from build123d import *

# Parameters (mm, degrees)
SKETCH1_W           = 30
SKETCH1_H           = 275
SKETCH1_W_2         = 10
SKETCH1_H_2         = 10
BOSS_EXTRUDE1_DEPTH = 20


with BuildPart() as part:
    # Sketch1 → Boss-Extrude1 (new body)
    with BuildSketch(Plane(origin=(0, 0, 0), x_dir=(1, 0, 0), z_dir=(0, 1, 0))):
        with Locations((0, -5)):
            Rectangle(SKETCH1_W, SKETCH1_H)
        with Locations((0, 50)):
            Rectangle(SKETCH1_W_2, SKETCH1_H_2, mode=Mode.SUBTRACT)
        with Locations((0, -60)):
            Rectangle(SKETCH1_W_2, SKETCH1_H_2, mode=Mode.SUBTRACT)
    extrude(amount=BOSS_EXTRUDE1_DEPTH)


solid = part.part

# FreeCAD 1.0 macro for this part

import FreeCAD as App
import Part
import Sketcher
from FreeCAD import Vector


def add_polygon(sketch, points):
    """Adds a closed chain of lines whose ends are joined by coincident constraints."""
    first, n = sketch.GeometryCount, len(points)
    for a, b in zip(points, points[1:] + points[:1]):
        sketch.addGeometry(Part.LineSegment(App.Vector(*a, 0), App.Vector(*b, 0)), False)
    for i in range(n):
        sketch.addConstraint(Sketcher.Constraint("Coincident", first + i, 2, first + (i + 1) % n, 1))

doc = App.newDocument("Part")
params = doc.addObject("Spreadsheet::Sheet", "Params")
for row, (alias, value) in enumerate([
    ("sketch1_width", "30 mm"),
    ("sketch1_width2", "10 mm"),
    ("sketch1_height", "275 mm"),
    ("pad1_length", "20 mm"),
], start=1):
    params.set(f"A{row}", alias)
    params.set(f"B{row}", "=" + value)
    params.setAlias(f"B{row}", alias)

body = doc.addObject("PartDesign::Body", "Body")

# Sketch on XZ plane
sketch1 = body.newObject("Sketcher::SketchObject", "Sketch")
sketch1.AttachmentSupport = (doc.getObject("XZ_Plane"), [""])
sketch1.MapMode = "FlatFace"
add_polygon(sketch1, [(-15, -132), (-15, 142), (15, 142), (15, -132)])  # lines 0-3
add_polygon(sketch1, [(5, 65), (-5, 65), (-5, 55), (5, 55)])  # lines 4-7
add_polygon(sketch1, [(5, -45), (-5, -45), (-5, -55), (5, -55)])  # lines 8-11
sketch1.addConstraint([
    Sketcher.Constraint("Vertical", 0),
    Sketcher.Constraint("Horizontal", 1),
    Sketcher.Constraint("Vertical", 2),
    Sketcher.Constraint("Horizontal", 3),
    Sketcher.Constraint("Horizontal", 4),
    Sketcher.Constraint("Vertical", 5),
    Sketcher.Constraint("Horizontal", 6),
    Sketcher.Constraint("Vertical", 7),
    Sketcher.Constraint("Horizontal", 8),
    Sketcher.Constraint("Vertical", 9),
    Sketcher.Constraint("Horizontal", 10),
    Sketcher.Constraint("Vertical", 11),
    Sketcher.Constraint("Symmetric", 6, 2, 9, 2, -1, 1),
    Sketcher.Constraint("Vertical", 5, 2, 8, 2),
    Sketcher.Constraint("Vertical", 7, 2, 10, 2),
    Sketcher.Constraint("Equal", 10, 5),
    Sketcher.Constraint("Equal", 7, 9),
    Sketcher.Constraint("DistanceX", 1, 1, 1, 2, 30.0),
    Sketcher.Constraint("DistanceX", 4, 2, 4, 1, 10.0),
    Sketcher.Constraint("DistanceY", 0, 1, 0, 2, 275.0),
    Sketcher.Constraint("DistanceX", 0, 2, -1, 1, 15.0),
    Sketcher.Constraint("DistanceY", -1, 1, 4, 2, 65.0),
    Sketcher.Constraint("DistanceY", -1, 1, 0, 2, 142.5),
])
sketch1.setExpression("Constraints[29]", "Params.sketch1_width")
sketch1.setExpression("Constraints[30]", "Params.sketch1_width2")
sketch1.setExpression("Constraints[31]", "Params.sketch1_height")
pad1 = body.newObject("PartDesign::Pad", "Pad")
pad1.Profile = sketch1
pad1.setExpression("Length", "Params.pad1_length")
pad1.Reversed = True

doc.recompute()
